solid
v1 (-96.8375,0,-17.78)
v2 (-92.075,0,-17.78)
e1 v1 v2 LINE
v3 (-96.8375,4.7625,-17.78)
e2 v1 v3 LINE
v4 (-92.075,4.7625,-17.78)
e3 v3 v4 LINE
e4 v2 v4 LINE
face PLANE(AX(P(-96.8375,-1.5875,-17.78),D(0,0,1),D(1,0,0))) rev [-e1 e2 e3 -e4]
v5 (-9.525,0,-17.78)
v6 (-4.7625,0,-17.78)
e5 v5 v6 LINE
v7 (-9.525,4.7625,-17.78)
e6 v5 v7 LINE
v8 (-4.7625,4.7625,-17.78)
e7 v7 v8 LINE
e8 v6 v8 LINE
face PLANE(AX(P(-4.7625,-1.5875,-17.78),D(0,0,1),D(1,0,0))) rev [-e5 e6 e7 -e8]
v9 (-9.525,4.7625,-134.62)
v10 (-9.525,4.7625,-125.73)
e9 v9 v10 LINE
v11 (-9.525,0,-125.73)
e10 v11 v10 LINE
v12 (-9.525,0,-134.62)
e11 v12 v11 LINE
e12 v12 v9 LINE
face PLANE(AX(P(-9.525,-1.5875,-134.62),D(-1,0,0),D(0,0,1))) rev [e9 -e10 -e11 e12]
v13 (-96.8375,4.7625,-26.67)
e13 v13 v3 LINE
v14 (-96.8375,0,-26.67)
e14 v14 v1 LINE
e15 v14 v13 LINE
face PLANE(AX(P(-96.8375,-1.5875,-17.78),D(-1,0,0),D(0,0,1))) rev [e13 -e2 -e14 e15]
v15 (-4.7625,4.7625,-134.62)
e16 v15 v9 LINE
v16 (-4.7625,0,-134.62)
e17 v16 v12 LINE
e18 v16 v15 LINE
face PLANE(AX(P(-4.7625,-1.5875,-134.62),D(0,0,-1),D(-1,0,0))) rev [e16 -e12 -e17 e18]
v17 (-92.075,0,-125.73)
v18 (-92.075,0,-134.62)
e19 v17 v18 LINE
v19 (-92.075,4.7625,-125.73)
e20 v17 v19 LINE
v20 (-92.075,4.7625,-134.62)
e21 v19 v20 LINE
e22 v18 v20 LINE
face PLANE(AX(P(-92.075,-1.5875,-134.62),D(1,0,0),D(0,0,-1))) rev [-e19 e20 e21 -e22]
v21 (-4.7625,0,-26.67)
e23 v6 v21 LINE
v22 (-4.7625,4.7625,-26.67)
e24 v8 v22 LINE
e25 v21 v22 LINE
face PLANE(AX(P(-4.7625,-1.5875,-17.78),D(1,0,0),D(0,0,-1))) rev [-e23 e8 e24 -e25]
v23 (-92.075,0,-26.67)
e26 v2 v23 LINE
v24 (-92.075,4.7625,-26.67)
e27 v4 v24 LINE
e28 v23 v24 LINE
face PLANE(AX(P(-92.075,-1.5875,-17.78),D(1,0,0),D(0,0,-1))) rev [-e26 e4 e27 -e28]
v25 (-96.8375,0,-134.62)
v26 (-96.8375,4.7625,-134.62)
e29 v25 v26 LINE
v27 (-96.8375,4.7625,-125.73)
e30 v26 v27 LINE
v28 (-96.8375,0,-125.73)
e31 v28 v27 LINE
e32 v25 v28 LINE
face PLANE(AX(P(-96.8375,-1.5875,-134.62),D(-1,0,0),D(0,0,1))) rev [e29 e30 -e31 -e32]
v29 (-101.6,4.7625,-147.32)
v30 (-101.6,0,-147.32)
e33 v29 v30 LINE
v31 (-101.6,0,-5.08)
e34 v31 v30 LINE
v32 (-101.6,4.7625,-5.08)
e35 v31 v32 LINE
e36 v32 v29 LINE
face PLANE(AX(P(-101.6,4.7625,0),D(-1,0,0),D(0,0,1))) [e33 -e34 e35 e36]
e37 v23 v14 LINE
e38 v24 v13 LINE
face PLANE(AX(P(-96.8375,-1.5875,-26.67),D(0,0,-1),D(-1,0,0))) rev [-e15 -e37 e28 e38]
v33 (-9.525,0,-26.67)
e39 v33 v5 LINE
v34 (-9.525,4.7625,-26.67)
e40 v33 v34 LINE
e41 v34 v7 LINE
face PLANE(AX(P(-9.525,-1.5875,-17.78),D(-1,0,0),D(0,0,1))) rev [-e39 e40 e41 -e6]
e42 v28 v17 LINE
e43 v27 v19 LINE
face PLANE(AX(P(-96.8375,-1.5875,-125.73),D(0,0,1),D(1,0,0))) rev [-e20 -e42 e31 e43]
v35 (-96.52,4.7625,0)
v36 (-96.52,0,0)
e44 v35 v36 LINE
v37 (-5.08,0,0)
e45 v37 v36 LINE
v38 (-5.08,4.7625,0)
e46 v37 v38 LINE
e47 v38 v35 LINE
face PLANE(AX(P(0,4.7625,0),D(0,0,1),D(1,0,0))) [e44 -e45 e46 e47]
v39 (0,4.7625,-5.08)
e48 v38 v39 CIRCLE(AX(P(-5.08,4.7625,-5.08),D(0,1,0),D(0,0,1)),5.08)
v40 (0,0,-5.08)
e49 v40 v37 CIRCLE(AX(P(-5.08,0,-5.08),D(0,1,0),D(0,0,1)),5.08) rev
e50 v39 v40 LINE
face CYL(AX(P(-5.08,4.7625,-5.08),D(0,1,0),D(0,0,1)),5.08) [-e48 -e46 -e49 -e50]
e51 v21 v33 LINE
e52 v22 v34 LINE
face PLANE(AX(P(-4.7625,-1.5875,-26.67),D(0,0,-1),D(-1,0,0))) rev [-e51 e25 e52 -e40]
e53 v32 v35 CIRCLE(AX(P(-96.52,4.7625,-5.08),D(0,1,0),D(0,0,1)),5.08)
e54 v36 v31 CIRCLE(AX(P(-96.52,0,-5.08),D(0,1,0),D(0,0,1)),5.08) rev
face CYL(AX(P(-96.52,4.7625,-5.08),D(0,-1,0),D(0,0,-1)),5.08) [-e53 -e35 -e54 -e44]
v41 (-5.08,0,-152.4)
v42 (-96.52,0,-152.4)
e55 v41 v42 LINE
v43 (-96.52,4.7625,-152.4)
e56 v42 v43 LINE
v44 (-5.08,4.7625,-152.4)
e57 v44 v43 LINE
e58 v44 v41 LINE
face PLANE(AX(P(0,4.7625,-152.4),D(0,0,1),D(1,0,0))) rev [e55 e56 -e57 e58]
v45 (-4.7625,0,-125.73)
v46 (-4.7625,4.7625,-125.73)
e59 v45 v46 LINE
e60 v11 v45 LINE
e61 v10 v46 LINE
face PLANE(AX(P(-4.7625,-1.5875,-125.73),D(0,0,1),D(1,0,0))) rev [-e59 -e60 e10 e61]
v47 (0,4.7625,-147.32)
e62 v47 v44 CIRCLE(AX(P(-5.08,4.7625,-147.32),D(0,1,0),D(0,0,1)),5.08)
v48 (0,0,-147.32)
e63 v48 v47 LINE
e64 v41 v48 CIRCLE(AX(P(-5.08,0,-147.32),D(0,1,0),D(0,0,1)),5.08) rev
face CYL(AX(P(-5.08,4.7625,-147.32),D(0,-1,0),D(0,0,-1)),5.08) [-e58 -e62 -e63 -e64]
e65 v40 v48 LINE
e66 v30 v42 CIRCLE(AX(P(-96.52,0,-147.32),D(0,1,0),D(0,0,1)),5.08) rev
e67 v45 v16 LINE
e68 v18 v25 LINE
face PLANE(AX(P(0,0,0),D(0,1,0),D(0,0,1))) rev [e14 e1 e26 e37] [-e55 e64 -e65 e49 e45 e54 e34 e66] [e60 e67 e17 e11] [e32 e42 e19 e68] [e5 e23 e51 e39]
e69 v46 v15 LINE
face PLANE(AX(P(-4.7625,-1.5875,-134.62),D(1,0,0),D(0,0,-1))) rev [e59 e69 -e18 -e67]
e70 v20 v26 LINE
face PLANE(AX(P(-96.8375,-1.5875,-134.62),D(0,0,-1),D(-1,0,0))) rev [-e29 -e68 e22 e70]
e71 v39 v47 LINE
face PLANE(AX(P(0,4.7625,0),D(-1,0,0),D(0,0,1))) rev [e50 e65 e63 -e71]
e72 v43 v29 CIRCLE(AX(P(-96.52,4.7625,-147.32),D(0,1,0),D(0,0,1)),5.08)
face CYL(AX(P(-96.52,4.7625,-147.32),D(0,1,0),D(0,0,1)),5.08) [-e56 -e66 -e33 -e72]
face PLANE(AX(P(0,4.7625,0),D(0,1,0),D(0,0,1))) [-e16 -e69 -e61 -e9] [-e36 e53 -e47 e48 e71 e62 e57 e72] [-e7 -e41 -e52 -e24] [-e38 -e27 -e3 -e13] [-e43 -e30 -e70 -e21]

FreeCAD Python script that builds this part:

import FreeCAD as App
import Part
import Sketcher
Q = App.Units.Quantity


def edges_at(feature, points):
    """Names of the edges that pass closest to the given points."""
    edges = feature.Shape.Edges
    near = lambda p: min(range(len(edges)), key=lambda i: edges[i].distToShape(Part.Vertex(*p))[0])
    return sorted({f"Edge{near(p) + 1}" for p in points})


def add_polygon(sketch, points):
    """Adds a closed chain of lines whose ends are joined by coincident constraints."""
    first, n = sketch.GeometryCount, len(points)
    for a, b in zip(points, points[1:] + points[:1]):
        sketch.addGeometry(Part.LineSegment(App.Vector(*a, 0), App.Vector(*b, 0)), False)
    for i in range(n):
        sketch.addConstraint(Sketcher.Constraint("Coincident", first + i, 2, first + (i + 1) % n, 1))

doc = App.newDocument("Part")
body = doc.addObject("PartDesign::Body", "Body")

# Sketch on XZ plane
sketch1 = body.newObject("Sketcher::SketchObject", "Sketch")
sketch1.AttachmentSupport = (doc.getObject("XZ_Plane"), [""])
sketch1.MapMode = "FlatFace"
add_polygon(sketch1, [(-101.6, -152.4), (-101.6, 0), (0, 0), (0, -152.4)])  # lines 0-3
sketch1.addConstraint([
    Sketcher.Constraint("Vertical", 0),
    Sketcher.Constraint("Horizontal", 1),
    Sketcher.Constraint("Vertical", 2),
    Sketcher.Constraint("Horizontal", 3),
    Sketcher.Constraint("Coincident", 1, 2, -1, 1),
    Sketcher.Constraint("DistanceX", 1, 1, 1, 2, Q("4 in")),
    Sketcher.Constraint("DistanceY", 0, 1, 0, 2, Q("6 in")),
])
pad1 = body.newObject("PartDesign::Pad", "Pad")
pad1.Profile = sketch1
pad1.Length = Q("0.1875 in")
pad1.Reversed = True

# Sketch on XZ plane
sketch2 = body.newObject("Sketcher::SketchObject", "Sketch001")
sketch2.AttachmentSupport = (doc.getObject("XZ_Plane"), [""])
sketch2.MapMode = "FlatFace"
sketch2.AttachmentOffset = App.Placement(App.Vector(0, 0, -0.1875 * 25.4), App.Rotation())
add_polygon(sketch2, [(-9.525, -134.62), (-9.525, -125.73), (-4.7625, -125.73), (-4.7625, -134.62)])  # lines 0-3
add_polygon(sketch2, [(-96.8375, -134.62), (-96.8375, -125.73), (-92.075, -125.73), (-92.075, -134.62)])  # lines 4-7
add_polygon(sketch2, [(-9.525, -26.67), (-9.525, -17.78), (-4.7625, -17.78), (-4.7625, -26.67)])  # lines 8-11
add_polygon(sketch2, [(-96.8375, -26.67), (-96.8375, -17.78), (-92.075, -17.78), (-92.075, -26.67)])  # lines 12-15
sketch2.addConstraint([
    Sketcher.Constraint("Vertical", 0),
    Sketcher.Constraint("Horizontal", 1),
    Sketcher.Constraint("Vertical", 2),
    Sketcher.Constraint("Horizontal", 3),
    Sketcher.Constraint("Vertical", 4),
    Sketcher.Constraint("Horizontal", 5),
    Sketcher.Constraint("Vertical", 6),
    Sketcher.Constraint("Horizontal", 7),
    Sketcher.Constraint("Vertical", 8),
    Sketcher.Constraint("Horizontal", 9),
    Sketcher.Constraint("Vertical", 10),
    Sketcher.Constraint("Horizontal", 11),
    Sketcher.Constraint("Vertical", 12),
    Sketcher.Constraint("Horizontal", 13),
    Sketcher.Constraint("Vertical", 14),
    Sketcher.Constraint("Horizontal", 15),
    Sketcher.Constraint("Horizontal", 1, 2, 4, 2),
    Sketcher.Constraint("Horizontal", 3, 2, 6, 2),
    Sketcher.Constraint("Horizontal", 9, 2, 12, 2),
    Sketcher.Constraint("Horizontal", 11, 2, 14, 2),
    Sketcher.Constraint("Vertical", 3, 2, 8, 2),
    Sketcher.Constraint("Vertical", 2, 2, 9, 2),
    Sketcher.Constraint("Vertical", 7, 2, 12, 2),
    Sketcher.Constraint("Vertical", 6, 2, 13, 2),
    Sketcher.Constraint("Equal", 3, 5),
    Sketcher.Constraint("Equal", 6, 8),
    Sketcher.Constraint("DistanceY", 0, 1, 0, 2, Q("0.35 in")),
    Sketcher.Constraint("DistanceY", 2, 2, -1, 1, Q("5.3 in")),
    Sketcher.Constraint("DistanceY", 8, 2, -1, 1, Q("0.7 in")),
    Sketcher.Constraint("DistanceX", 1, 1, 1, 2, Q("0.1875 in")),
    Sketcher.Constraint("DistanceX", 5, 2, 0, 2, Q("3.25 in")),
    Sketcher.Constraint("DistanceX", 0, 2, -1, 1, Q("0.375 in")),
])
pocket1 = body.newObject("PartDesign::Pocket", "Pocket")
pocket1.Profile = sketch2
pocket1.Length = Q("0.25 in")
pocket1.Reversed = True
doc.recompute()

fillet = body.newObject("PartDesign::Fillet", "Fillet")
fillet.Base = (pocket1, edges_at(pocket1, [
    (0, 2.381, 0),
    (-101.6, 2.381, 0),
    (-101.6, 2.381, -152.4),
    (0, 2.381, -152.4),
]))
fillet.Radius = Q("0.2 in")

doc.recompute()
